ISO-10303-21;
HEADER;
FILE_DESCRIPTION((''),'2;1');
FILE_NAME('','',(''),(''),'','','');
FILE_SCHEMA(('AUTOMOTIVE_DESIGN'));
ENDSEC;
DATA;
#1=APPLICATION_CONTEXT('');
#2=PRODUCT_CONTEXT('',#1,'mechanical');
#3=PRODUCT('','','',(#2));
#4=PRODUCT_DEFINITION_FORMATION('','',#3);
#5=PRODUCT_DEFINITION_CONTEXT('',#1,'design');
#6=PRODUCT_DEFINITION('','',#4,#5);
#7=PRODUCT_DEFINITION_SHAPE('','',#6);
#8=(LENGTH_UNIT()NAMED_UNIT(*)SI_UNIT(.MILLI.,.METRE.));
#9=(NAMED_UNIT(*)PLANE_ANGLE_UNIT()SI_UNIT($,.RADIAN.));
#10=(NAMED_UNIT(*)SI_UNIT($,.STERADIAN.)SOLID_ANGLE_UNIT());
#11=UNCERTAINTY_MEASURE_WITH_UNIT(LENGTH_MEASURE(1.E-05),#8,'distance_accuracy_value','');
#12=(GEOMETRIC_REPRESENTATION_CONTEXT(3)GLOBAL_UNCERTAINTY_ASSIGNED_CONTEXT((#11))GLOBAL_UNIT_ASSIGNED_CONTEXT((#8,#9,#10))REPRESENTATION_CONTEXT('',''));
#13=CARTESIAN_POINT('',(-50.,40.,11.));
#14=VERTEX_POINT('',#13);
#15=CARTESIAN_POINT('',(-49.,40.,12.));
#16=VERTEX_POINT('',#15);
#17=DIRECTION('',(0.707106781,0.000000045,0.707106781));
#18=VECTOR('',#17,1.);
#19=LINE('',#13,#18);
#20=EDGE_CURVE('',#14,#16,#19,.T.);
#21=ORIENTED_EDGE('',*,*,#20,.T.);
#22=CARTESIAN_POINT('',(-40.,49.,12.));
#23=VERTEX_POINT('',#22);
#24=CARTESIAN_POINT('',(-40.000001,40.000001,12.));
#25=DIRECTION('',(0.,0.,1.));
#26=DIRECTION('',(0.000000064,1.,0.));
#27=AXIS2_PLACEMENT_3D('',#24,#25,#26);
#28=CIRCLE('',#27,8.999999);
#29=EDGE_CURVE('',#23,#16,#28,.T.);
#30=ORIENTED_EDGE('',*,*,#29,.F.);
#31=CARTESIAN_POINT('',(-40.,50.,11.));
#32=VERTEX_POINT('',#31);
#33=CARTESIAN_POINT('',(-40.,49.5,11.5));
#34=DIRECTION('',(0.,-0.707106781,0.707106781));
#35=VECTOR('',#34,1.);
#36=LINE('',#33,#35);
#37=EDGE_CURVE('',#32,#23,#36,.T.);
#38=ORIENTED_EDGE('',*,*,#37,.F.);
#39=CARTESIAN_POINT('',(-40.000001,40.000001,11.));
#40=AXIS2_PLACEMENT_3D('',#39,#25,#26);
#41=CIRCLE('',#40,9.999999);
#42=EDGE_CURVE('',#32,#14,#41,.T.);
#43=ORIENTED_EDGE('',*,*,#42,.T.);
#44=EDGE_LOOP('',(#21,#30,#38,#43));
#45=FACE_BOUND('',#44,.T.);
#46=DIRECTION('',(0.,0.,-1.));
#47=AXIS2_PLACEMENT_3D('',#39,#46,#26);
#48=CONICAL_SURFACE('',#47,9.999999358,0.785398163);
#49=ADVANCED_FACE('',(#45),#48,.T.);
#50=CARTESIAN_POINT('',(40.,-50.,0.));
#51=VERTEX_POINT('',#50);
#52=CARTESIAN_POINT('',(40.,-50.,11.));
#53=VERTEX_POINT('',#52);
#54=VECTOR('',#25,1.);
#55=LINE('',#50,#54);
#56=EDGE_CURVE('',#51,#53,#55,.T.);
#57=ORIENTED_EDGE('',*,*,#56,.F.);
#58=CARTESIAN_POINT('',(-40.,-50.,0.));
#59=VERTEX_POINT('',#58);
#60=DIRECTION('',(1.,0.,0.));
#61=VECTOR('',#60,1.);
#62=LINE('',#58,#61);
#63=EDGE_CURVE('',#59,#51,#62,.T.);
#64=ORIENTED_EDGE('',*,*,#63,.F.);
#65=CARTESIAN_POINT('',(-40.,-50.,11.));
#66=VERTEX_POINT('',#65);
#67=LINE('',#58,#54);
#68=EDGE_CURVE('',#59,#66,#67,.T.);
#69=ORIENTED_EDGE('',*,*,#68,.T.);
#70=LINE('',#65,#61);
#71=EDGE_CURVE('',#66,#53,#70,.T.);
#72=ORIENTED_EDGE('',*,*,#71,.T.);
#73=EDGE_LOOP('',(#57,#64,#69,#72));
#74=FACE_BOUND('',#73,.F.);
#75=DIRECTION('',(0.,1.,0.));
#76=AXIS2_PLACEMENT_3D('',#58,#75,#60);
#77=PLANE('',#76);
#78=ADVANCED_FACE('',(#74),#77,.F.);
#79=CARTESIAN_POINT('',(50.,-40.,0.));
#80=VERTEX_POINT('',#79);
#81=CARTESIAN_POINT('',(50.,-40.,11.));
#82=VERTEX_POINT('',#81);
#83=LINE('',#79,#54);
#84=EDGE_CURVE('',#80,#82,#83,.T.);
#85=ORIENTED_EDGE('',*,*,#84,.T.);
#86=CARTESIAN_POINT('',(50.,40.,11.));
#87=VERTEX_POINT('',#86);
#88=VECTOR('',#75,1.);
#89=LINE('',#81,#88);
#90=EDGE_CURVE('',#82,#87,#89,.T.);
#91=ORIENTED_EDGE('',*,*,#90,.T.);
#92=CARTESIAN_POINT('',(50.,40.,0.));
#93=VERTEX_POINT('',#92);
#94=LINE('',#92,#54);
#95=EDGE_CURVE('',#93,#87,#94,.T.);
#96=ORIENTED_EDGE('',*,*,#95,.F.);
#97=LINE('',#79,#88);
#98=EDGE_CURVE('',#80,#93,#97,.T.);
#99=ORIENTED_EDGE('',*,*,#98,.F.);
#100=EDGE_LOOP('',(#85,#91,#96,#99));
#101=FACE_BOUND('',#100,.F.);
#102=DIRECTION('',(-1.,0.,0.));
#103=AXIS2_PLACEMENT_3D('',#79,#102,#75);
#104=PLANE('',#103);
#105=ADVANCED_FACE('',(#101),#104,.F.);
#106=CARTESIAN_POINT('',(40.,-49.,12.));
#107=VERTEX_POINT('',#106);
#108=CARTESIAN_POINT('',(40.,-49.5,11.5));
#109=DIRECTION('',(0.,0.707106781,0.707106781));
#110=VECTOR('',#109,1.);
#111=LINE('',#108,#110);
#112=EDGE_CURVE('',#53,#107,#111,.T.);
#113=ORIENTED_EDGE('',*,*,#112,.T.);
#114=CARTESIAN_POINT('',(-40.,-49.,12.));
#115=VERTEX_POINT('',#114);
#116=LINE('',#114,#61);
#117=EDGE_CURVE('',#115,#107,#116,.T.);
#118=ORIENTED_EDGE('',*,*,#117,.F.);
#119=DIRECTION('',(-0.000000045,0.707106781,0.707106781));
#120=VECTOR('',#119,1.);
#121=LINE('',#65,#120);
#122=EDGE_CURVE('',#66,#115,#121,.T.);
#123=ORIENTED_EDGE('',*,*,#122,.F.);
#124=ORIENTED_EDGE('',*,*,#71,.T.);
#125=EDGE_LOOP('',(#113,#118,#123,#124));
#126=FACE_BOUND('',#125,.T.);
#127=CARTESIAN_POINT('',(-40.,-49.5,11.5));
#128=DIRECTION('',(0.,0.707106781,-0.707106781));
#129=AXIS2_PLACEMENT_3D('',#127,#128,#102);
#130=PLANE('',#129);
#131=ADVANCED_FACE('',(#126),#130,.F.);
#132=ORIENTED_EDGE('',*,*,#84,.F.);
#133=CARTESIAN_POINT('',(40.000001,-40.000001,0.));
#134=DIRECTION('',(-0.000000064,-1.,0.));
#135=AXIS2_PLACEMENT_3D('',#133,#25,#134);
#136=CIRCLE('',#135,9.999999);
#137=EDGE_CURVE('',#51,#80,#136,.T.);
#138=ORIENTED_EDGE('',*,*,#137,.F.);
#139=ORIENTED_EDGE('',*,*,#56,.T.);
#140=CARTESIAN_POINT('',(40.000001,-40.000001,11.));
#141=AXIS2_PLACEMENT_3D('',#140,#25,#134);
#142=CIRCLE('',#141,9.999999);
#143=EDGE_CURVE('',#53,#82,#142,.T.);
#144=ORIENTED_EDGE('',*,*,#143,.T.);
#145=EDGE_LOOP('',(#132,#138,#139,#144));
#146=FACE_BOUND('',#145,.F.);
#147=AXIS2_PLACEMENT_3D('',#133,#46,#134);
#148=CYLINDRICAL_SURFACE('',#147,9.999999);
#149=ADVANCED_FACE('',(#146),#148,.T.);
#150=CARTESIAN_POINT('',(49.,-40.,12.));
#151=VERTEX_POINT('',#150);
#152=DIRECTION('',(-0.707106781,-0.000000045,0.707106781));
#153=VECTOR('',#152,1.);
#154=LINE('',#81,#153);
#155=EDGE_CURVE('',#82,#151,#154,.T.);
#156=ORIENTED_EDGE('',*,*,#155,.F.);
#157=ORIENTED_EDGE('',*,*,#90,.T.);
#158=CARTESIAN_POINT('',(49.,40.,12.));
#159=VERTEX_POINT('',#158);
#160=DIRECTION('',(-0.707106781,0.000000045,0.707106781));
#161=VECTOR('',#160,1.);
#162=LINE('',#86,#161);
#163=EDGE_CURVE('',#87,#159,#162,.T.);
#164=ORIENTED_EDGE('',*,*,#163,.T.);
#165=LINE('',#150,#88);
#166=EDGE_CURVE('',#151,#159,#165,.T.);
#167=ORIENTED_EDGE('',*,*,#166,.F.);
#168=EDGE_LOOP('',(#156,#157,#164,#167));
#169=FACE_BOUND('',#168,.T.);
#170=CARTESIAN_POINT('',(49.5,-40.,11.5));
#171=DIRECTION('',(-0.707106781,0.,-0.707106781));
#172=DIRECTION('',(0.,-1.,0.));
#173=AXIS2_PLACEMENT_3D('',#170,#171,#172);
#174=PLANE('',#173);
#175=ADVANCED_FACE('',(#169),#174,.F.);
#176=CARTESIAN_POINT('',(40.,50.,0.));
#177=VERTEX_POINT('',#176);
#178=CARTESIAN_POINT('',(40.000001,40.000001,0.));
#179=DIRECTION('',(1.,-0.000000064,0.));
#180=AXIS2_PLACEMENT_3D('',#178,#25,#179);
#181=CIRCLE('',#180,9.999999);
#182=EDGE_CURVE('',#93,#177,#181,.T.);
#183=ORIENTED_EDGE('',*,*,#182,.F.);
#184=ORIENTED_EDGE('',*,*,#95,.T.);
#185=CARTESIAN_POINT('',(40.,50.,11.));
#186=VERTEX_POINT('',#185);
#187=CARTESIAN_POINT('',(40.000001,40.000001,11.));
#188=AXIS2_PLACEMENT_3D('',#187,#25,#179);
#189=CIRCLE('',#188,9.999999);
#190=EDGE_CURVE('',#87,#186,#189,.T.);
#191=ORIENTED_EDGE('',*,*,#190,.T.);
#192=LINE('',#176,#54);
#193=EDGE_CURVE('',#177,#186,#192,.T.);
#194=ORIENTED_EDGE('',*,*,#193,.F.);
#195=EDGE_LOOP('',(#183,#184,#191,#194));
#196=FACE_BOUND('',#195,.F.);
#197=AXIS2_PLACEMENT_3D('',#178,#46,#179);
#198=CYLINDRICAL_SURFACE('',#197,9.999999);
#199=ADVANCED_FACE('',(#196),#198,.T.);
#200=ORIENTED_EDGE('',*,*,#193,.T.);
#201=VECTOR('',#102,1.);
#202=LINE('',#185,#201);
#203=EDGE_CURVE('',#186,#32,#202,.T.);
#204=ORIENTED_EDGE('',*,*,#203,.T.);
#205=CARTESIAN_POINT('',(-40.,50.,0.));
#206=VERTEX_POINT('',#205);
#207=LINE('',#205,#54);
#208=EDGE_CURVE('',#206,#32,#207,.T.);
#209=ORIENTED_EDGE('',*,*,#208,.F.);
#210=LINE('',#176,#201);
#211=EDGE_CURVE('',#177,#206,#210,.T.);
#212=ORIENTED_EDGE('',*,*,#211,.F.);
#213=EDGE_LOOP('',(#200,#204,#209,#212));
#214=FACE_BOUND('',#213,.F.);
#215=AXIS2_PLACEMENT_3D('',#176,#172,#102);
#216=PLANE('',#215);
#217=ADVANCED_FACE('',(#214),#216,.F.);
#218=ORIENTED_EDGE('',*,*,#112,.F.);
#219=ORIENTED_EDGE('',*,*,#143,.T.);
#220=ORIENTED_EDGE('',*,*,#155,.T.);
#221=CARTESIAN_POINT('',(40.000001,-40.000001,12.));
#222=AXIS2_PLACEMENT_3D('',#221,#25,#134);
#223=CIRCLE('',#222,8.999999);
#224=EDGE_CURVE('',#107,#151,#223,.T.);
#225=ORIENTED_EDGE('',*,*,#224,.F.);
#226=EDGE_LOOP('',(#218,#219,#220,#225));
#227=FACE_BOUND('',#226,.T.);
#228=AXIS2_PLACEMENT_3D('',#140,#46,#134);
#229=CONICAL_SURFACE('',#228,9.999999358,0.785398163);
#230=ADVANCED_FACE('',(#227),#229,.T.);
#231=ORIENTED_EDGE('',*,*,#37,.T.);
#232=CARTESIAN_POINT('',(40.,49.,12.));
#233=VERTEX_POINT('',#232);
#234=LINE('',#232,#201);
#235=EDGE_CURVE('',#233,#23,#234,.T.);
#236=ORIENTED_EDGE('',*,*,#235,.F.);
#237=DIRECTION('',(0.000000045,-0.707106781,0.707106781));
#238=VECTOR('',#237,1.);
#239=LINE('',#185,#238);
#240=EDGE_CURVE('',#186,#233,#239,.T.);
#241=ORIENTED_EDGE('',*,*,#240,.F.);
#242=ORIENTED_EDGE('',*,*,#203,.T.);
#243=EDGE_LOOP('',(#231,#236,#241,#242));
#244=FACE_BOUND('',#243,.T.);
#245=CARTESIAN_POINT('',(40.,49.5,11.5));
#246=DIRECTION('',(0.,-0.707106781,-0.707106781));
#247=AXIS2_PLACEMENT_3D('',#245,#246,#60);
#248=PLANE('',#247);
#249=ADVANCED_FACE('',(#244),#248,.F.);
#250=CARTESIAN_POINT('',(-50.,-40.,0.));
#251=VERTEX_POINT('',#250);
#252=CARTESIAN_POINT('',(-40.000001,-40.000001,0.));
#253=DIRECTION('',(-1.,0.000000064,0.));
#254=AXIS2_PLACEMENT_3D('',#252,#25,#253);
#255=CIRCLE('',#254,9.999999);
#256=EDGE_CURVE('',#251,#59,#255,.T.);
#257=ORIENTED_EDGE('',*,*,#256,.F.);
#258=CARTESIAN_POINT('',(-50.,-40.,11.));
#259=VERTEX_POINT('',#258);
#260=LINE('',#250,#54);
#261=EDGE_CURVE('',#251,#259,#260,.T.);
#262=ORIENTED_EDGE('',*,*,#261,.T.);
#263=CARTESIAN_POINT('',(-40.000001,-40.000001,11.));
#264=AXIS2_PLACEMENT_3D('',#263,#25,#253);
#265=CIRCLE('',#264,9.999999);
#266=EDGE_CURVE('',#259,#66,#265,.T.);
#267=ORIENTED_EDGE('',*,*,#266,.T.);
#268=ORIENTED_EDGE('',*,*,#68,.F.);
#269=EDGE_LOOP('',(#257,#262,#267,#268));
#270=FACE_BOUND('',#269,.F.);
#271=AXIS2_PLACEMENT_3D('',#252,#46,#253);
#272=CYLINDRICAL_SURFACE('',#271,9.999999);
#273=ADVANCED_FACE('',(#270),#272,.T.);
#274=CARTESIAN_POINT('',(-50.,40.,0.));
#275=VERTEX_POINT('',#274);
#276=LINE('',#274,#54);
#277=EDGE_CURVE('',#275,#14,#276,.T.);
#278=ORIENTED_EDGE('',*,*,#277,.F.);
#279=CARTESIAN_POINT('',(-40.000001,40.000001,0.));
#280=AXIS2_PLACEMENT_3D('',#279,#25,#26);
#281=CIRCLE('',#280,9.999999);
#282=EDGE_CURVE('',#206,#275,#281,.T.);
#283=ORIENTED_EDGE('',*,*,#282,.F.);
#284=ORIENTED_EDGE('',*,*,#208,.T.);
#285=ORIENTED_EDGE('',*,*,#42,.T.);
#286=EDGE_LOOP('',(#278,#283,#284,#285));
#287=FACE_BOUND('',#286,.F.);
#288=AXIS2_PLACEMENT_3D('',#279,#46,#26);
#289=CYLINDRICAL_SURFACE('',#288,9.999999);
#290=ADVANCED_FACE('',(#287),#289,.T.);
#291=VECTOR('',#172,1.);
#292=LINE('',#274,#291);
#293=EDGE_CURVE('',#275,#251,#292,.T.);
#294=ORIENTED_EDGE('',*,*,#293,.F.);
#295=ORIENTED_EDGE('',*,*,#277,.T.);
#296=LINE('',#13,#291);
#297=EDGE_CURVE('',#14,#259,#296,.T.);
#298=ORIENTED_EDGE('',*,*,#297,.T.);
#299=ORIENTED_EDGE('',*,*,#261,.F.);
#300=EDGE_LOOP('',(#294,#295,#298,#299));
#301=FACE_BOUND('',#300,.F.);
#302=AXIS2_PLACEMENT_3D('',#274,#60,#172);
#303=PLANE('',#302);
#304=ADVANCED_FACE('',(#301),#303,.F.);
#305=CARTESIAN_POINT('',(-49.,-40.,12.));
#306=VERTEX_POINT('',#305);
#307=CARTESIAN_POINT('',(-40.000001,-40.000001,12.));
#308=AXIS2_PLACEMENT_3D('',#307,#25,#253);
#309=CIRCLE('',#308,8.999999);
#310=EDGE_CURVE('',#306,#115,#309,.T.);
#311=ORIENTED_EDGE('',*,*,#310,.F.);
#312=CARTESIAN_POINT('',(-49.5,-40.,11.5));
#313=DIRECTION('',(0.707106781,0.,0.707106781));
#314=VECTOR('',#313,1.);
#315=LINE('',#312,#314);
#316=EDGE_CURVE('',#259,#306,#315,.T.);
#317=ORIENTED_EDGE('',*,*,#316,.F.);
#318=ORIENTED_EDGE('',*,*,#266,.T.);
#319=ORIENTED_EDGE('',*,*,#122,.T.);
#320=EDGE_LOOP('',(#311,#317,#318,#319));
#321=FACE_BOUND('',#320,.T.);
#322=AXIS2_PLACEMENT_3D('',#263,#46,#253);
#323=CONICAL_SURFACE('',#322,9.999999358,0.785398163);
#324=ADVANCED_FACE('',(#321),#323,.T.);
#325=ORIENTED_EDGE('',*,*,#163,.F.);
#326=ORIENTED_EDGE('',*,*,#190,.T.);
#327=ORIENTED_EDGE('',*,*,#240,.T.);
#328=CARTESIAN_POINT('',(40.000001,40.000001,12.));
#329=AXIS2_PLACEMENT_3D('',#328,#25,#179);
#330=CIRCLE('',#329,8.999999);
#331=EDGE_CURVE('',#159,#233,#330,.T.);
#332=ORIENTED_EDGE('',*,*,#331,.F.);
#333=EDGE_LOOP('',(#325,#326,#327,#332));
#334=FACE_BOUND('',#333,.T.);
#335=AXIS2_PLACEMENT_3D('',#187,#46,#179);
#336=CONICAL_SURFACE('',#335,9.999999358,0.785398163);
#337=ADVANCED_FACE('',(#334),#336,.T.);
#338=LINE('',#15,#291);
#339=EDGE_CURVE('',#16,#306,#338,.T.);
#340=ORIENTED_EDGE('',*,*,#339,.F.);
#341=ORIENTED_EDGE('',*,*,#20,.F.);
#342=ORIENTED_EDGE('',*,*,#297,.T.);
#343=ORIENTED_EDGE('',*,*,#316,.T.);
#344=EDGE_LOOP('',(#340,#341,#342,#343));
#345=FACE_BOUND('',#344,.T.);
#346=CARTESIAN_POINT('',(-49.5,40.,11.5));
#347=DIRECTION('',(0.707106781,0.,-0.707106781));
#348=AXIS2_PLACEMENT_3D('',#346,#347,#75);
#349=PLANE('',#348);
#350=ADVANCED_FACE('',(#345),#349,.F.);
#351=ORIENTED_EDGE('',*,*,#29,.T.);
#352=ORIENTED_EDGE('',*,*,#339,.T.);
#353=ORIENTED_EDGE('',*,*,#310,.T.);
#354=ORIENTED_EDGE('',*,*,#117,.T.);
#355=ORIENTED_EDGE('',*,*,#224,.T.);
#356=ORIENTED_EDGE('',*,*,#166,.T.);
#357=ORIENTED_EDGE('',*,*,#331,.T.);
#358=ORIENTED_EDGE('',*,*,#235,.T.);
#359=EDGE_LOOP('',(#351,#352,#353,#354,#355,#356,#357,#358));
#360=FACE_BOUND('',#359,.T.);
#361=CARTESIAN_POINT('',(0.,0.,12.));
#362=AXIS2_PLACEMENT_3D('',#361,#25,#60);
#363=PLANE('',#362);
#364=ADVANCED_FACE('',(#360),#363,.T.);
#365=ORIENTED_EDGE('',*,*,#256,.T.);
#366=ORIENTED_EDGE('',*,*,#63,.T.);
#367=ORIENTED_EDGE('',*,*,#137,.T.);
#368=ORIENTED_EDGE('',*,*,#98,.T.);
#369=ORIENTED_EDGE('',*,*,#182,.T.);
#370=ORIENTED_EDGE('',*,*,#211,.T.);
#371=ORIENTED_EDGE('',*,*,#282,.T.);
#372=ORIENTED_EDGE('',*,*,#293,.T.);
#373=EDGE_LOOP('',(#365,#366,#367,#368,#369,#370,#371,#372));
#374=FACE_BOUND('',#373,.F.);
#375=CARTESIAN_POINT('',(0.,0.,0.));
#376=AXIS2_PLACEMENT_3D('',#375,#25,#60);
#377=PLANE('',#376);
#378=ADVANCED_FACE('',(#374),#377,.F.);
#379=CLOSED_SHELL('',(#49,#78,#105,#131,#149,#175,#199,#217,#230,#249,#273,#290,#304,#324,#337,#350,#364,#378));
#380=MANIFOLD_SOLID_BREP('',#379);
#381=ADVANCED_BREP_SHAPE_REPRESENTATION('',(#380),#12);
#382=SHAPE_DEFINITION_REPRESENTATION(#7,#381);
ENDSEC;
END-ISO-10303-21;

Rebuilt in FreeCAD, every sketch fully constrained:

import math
import FreeCAD as App
import Part
import Sketcher

V = App.Vector
Q = App.Units.Quantity


def edges_at(feature, points):
    """Names of the edges that pass closest to the given points."""
    edges = feature.Shape.Edges
    near = lambda p: min(range(len(edges)), key=lambda i: edges[i].distToShape(Part.Vertex(*p))[0])
    return sorted({f"Edge{near(p) + 1}" for p in points})

doc = App.newDocument("Part")
params = doc.addObject("Spreadsheet::Sheet", "Params")
for row, (alias, value) in enumerate([
    ("sketch1_radius", "9.999999 mm"),
    ("sketch1_width", "80 mm"),
    ("pad1_length", "12 mm"),
    ("chamfer_size", "1 mm"),
], start=1):
    params.set(f"A{row}", alias)
    params.set(f"B{row}", "=" + value)
    params.setAlias(f"B{row}", alias)

body = doc.addObject("PartDesign::Body", "Body")

# Sketch on XY plane
sketch1 = body.newObject("Sketcher::SketchObject", "Sketch")
sketch1.AttachmentSupport = (doc.getObject("XY_Plane"), [""])
sketch1.MapMode = "FlatFace"
sketch1.addGeometry(Part.ArcOfCircle(Part.Circle(V(40, 40, 0), V(0, 0, 1), 10), math.radians(0), math.radians(90)), False)
sketch1.addGeometry(Part.LineSegment(V(40, 50, 0), V(-40, 50, 0)), False)
sketch1.addGeometry(Part.ArcOfCircle(Part.Circle(V(-40, 40, 0), V(0, 0, 1), 10), math.radians(90), math.radians(180)), False)
sketch1.addGeometry(Part.LineSegment(V(-50, 40, 0), V(-50, -40, 0)), False)
sketch1.addGeometry(Part.ArcOfCircle(Part.Circle(V(-40, -40, 0), V(0, 0, 1), 10), math.radians(180), math.radians(270)), False)
sketch1.addGeometry(Part.LineSegment(V(-40, -50, 0), V(40, -50, 0)), False)
sketch1.addGeometry(Part.ArcOfCircle(Part.Circle(V(40, -40, 0), V(0, 0, 1), 10), math.radians(-90), math.radians(0)), False)
sketch1.addGeometry(Part.LineSegment(V(50, -40, 0), V(50, 40, 0)), False)
sketch1.addConstraint(Sketcher.Constraint("Tangent", 0, 2, 1, 1))
sketch1.addConstraint(Sketcher.Constraint("Tangent", 1, 2, 2, 1))
sketch1.addConstraint(Sketcher.Constraint("Tangent", 2, 2, 3, 1))
sketch1.addConstraint(Sketcher.Constraint("Tangent", 3, 2, 4, 1))
sketch1.addConstraint(Sketcher.Constraint("Tangent", 4, 2, 5, 1))
sketch1.addConstraint(Sketcher.Constraint("Tangent", 5, 2, 6, 1))
sketch1.addConstraint(Sketcher.Constraint("Tangent", 6, 2, 7, 1))
sketch1.addConstraint(Sketcher.Constraint("Tangent", 7, 2, 0, 1))
sketch1.addConstraint(Sketcher.Constraint("Horizontal", 1))
sketch1.addConstraint(Sketcher.Constraint("Vertical", 3))
sketch1.addConstraint(Sketcher.Constraint("Horizontal", 5))
sketch1.addConstraint(Sketcher.Constraint("Vertical", 7))
sketch1.addConstraint(Sketcher.Constraint("Equal", 0, 2))
sketch1.addConstraint(Sketcher.Constraint("Equal", 2, 4))
sketch1.addConstraint(Sketcher.Constraint("Equal", 4, 6))
sketch1.addConstraint(Sketcher.Constraint("Symmetric", 0, 3, 4, 3, -1, 1))
sketch1.addConstraint(Sketcher.Constraint("Equal", 5, 3))
sketch1.addConstraint(Sketcher.Constraint("Radius", 0, Q("9.999999 mm")))
sketch1.addConstraint(Sketcher.Constraint("DistanceX", 1, 2, 1, 1, Q("80 mm")))
sketch1.setExpression("Constraints[17]", "Params.sketch1_radius")
sketch1.setExpression("Constraints[18]", "Params.sketch1_width")
pad1 = body.newObject("PartDesign::Pad", "Pad")
pad1.Profile = sketch1
pad1.setExpression("Length", "Params.pad1_length")
doc.recompute()

chamfer = body.newObject("PartDesign::Chamfer", "Chamfer")
chamfer.Base = (pad1, edges_at(pad1, [
    (47.071, 47.071, 12),
    (0, 50, 12),
    (-47.071, 47.071, 12),
    (-50, 0, 12),
    (-47.071, -47.071, 12),
    (0, -50, 12),
    (47.071, -47.071, 12),
    (50, 0, 12),
]))
chamfer.setExpression("Size", "Params.chamfer_size")

doc.recompute()
